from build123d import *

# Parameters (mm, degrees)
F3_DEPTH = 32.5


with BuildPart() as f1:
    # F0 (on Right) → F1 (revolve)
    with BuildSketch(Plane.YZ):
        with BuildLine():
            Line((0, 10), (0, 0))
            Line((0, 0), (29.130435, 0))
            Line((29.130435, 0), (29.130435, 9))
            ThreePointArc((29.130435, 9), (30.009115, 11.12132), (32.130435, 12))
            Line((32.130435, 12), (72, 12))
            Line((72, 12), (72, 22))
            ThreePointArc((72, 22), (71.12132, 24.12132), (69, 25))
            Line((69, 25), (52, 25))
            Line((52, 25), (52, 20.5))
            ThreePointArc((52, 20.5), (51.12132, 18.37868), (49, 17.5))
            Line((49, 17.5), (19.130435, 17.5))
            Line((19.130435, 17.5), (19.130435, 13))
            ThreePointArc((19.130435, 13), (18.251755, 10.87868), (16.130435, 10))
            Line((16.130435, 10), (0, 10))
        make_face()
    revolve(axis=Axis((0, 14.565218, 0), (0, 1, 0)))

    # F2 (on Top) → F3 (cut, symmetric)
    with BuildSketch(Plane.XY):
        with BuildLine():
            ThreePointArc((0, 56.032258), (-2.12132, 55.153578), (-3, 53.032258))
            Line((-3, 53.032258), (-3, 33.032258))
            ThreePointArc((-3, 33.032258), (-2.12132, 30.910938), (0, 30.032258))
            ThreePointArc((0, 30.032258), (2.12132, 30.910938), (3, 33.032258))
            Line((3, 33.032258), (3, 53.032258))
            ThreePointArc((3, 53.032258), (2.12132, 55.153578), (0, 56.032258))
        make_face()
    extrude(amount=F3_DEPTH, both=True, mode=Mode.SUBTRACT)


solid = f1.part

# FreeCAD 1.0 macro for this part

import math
import FreeCAD as App
import Part
import Sketcher

doc = App.newDocument("Part")
body = doc.addObject("PartDesign::Body", "Body")

# Sketch on YZ plane
sketch1 = body.newObject("Sketcher::SketchObject", "Sketch")
sketch1.AttachmentSupport = (doc.getObject("YZ_Plane"), [""])
sketch1.MapMode = "FlatFace"
sketch1.addGeometry([
    Part.LineSegment(App.Vector(0, 10, 0), App.Vector(0, 0, 0)),  # 0
    Part.LineSegment(App.Vector(0, 0, 0), App.Vector(29.1, 0, 0)),  # 1
    Part.LineSegment(App.Vector(29.1, 0, 0), App.Vector(29.1, 9, 0)),  # 2
    Part.ArcOfCircle(Part.Circle(App.Vector(32.1, 9, 0), App.Vector(0, 0, 1), 3), math.radians(90), math.radians(180)),  # 3
    Part.LineSegment(App.Vector(32.1, 12, 0), App.Vector(72, 12, 0)),  # 4
    Part.LineSegment(App.Vector(72, 12, 0), App.Vector(72, 22, 0)),  # 5
    Part.ArcOfCircle(Part.Circle(App.Vector(69, 22, 0), App.Vector(0, 0, 1), 3), math.radians(0), math.radians(90)),  # 6
    Part.LineSegment(App.Vector(69, 25, 0), App.Vector(52, 25, 0)),  # 7
    Part.LineSegment(App.Vector(52, 25, 0), App.Vector(52, 20.5, 0)),  # 8
    Part.ArcOfCircle(Part.Circle(App.Vector(49, 20.5, 0), App.Vector(0, 0, 1), 3), math.radians(-90), math.radians(0)),  # 9
    Part.LineSegment(App.Vector(49, 17.5, 0), App.Vector(19.1, 17.5, 0)),  # 10
    Part.LineSegment(App.Vector(19.1, 17.5, 0), App.Vector(19.1, 13, 0)),  # 11
    Part.ArcOfCircle(Part.Circle(App.Vector(16.1, 13, 0), App.Vector(0, 0, 1), 3), math.radians(-90), math.radians(0)),  # 12
    Part.LineSegment(App.Vector(16.1, 10, 0), App.Vector(0, 10, 0)),  # 13
], False)
sketch1.addConstraint([
    Sketcher.Constraint("Coincident", 0, 2, 1, 1),
    Sketcher.Constraint("Coincident", 1, 2, 2, 1),
    Sketcher.Constraint("Tangent", 2, 2, 3, 2),
    Sketcher.Constraint("Tangent", 3, 1, 4, 1),
    Sketcher.Constraint("Coincident", 4, 2, 5, 1),
    Sketcher.Constraint("Tangent", 5, 2, 6, 1),
    Sketcher.Constraint("Tangent", 6, 2, 7, 1),
    Sketcher.Constraint("Coincident", 7, 2, 8, 1),
    Sketcher.Constraint("Tangent", 8, 2, 9, 2),
    Sketcher.Constraint("Tangent", 9, 1, 10, 1),
    Sketcher.Constraint("Coincident", 10, 2, 11, 1),
    Sketcher.Constraint("Tangent", 11, 2, 12, 2),
    Sketcher.Constraint("Tangent", 12, 1, 13, 1),
    Sketcher.Constraint("Coincident", 13, 2, 0, 1),
    Sketcher.Constraint("Vertical", 0),
    Sketcher.Constraint("Horizontal", 1),
    Sketcher.Constraint("Vertical", 2),
    Sketcher.Constraint("Horizontal", 4),
    Sketcher.Constraint("Vertical", 5),
    Sketcher.Constraint("Horizontal", 7),
    Sketcher.Constraint("Vertical", 8),
    Sketcher.Constraint("Horizontal", 10),
    Sketcher.Constraint("Vertical", 11),
    Sketcher.Constraint("Horizontal", 13),
    Sketcher.Constraint("Coincident", 0, 2, -1, 1),
    Sketcher.Constraint("Equal", 3, 6),
    Sketcher.Constraint("Equal", 6, 9),
    Sketcher.Constraint("Equal", 9, 12),
    Sketcher.Constraint("Equal", 0, 5),
    Sketcher.Constraint("Equal", 8, 11),
    Sketcher.Constraint("Radius", 3, 3.000001),
    Sketcher.Constraint("DistanceX", 7, 2, 7, 1, 17.0),
    Sketcher.Constraint("DistanceY", 0, 2, 0, 1, 10.0),
    Sketcher.Constraint("DistanceY", 2, 1, 2, 2, 9.0),
    Sketcher.Constraint("DistanceX", -1, 1, 6, 3, 68.999999),
    Sketcher.Constraint("DistanceX", 12, 3, 1, 2, 13.000001),
    Sketcher.Constraint("DistanceX", 1, 1, 1, 2, 29.130435),
])
revolution = body.newObject("PartDesign::Revolution", "Revolution")
revolution.Profile = sketch1
revolution.ReferenceAxis = (sketch1, ["H_Axis"])
revolution.Angle = 360

# Sketch on XY plane
sketch2 = body.newObject("Sketcher::SketchObject", "Sketch001")
sketch2.AttachmentSupport = (doc.getObject("XY_Plane"), [""])
sketch2.MapMode = "FlatFace"
sketch2.addGeometry([
    Part.ArcOfCircle(Part.Circle(App.Vector(0, 53, 0), App.Vector(0, 0, 1), 3), math.radians(90), math.radians(180)),  # 0
    Part.LineSegment(App.Vector(-3, 53, 0), App.Vector(-3, 33, 0)),  # 1
    Part.ArcOfCircle(Part.Circle(App.Vector(0, 33, 0), App.Vector(0, 0, 1), 3), math.radians(-180), math.radians(-90)),  # 2
    Part.ArcOfCircle(Part.Circle(App.Vector(0, 33, 0), App.Vector(0, 0, 1), 3), math.radians(-90), math.radians(0)),  # 3
    Part.LineSegment(App.Vector(3, 33, 0), App.Vector(3, 53, 0)),  # 4
    Part.ArcOfCircle(Part.Circle(App.Vector(0, 53, 0), App.Vector(0, 0, 1), 3), math.radians(0), math.radians(90)),  # 5
], False)
sketch2.addConstraint([
    Sketcher.Constraint("Tangent", 0, 2, 1, 1),
    Sketcher.Constraint("Tangent", 1, 2, 2, 1),
    Sketcher.Constraint("Tangent", 2, 2, 3, 1),
    Sketcher.Constraint("Tangent", 3, 2, 4, 1),
    Sketcher.Constraint("Tangent", 4, 2, 5, 1),
    Sketcher.Constraint("Tangent", 5, 2, 0, 1),
    Sketcher.Constraint("Vertical", 1),
    Sketcher.Constraint("Vertical", 4),
    Sketcher.Constraint("Equal", 0, 2),
    Sketcher.Constraint("Equal", 2, 3),
    Sketcher.Constraint("PointOnObject", 0, 3, -2),
    Sketcher.Constraint("PointOnObject", 2, 2, -2),
    Sketcher.Constraint("PointOnObject", 5, 2, -2),
    Sketcher.Constraint("Radius", 0, 3.000001),
    Sketcher.Constraint("DistanceY", 1, 2, 1, 1, 20.0),
    Sketcher.Constraint("DistanceY", -1, 1, 2, 3, 33.032259),
])
pocket1 = body.newObject("PartDesign::Pocket", "Pocket")
pocket1.Profile = sketch2
pocket1.Length = 65
pocket1.Midplane = True

doc.recompute()
